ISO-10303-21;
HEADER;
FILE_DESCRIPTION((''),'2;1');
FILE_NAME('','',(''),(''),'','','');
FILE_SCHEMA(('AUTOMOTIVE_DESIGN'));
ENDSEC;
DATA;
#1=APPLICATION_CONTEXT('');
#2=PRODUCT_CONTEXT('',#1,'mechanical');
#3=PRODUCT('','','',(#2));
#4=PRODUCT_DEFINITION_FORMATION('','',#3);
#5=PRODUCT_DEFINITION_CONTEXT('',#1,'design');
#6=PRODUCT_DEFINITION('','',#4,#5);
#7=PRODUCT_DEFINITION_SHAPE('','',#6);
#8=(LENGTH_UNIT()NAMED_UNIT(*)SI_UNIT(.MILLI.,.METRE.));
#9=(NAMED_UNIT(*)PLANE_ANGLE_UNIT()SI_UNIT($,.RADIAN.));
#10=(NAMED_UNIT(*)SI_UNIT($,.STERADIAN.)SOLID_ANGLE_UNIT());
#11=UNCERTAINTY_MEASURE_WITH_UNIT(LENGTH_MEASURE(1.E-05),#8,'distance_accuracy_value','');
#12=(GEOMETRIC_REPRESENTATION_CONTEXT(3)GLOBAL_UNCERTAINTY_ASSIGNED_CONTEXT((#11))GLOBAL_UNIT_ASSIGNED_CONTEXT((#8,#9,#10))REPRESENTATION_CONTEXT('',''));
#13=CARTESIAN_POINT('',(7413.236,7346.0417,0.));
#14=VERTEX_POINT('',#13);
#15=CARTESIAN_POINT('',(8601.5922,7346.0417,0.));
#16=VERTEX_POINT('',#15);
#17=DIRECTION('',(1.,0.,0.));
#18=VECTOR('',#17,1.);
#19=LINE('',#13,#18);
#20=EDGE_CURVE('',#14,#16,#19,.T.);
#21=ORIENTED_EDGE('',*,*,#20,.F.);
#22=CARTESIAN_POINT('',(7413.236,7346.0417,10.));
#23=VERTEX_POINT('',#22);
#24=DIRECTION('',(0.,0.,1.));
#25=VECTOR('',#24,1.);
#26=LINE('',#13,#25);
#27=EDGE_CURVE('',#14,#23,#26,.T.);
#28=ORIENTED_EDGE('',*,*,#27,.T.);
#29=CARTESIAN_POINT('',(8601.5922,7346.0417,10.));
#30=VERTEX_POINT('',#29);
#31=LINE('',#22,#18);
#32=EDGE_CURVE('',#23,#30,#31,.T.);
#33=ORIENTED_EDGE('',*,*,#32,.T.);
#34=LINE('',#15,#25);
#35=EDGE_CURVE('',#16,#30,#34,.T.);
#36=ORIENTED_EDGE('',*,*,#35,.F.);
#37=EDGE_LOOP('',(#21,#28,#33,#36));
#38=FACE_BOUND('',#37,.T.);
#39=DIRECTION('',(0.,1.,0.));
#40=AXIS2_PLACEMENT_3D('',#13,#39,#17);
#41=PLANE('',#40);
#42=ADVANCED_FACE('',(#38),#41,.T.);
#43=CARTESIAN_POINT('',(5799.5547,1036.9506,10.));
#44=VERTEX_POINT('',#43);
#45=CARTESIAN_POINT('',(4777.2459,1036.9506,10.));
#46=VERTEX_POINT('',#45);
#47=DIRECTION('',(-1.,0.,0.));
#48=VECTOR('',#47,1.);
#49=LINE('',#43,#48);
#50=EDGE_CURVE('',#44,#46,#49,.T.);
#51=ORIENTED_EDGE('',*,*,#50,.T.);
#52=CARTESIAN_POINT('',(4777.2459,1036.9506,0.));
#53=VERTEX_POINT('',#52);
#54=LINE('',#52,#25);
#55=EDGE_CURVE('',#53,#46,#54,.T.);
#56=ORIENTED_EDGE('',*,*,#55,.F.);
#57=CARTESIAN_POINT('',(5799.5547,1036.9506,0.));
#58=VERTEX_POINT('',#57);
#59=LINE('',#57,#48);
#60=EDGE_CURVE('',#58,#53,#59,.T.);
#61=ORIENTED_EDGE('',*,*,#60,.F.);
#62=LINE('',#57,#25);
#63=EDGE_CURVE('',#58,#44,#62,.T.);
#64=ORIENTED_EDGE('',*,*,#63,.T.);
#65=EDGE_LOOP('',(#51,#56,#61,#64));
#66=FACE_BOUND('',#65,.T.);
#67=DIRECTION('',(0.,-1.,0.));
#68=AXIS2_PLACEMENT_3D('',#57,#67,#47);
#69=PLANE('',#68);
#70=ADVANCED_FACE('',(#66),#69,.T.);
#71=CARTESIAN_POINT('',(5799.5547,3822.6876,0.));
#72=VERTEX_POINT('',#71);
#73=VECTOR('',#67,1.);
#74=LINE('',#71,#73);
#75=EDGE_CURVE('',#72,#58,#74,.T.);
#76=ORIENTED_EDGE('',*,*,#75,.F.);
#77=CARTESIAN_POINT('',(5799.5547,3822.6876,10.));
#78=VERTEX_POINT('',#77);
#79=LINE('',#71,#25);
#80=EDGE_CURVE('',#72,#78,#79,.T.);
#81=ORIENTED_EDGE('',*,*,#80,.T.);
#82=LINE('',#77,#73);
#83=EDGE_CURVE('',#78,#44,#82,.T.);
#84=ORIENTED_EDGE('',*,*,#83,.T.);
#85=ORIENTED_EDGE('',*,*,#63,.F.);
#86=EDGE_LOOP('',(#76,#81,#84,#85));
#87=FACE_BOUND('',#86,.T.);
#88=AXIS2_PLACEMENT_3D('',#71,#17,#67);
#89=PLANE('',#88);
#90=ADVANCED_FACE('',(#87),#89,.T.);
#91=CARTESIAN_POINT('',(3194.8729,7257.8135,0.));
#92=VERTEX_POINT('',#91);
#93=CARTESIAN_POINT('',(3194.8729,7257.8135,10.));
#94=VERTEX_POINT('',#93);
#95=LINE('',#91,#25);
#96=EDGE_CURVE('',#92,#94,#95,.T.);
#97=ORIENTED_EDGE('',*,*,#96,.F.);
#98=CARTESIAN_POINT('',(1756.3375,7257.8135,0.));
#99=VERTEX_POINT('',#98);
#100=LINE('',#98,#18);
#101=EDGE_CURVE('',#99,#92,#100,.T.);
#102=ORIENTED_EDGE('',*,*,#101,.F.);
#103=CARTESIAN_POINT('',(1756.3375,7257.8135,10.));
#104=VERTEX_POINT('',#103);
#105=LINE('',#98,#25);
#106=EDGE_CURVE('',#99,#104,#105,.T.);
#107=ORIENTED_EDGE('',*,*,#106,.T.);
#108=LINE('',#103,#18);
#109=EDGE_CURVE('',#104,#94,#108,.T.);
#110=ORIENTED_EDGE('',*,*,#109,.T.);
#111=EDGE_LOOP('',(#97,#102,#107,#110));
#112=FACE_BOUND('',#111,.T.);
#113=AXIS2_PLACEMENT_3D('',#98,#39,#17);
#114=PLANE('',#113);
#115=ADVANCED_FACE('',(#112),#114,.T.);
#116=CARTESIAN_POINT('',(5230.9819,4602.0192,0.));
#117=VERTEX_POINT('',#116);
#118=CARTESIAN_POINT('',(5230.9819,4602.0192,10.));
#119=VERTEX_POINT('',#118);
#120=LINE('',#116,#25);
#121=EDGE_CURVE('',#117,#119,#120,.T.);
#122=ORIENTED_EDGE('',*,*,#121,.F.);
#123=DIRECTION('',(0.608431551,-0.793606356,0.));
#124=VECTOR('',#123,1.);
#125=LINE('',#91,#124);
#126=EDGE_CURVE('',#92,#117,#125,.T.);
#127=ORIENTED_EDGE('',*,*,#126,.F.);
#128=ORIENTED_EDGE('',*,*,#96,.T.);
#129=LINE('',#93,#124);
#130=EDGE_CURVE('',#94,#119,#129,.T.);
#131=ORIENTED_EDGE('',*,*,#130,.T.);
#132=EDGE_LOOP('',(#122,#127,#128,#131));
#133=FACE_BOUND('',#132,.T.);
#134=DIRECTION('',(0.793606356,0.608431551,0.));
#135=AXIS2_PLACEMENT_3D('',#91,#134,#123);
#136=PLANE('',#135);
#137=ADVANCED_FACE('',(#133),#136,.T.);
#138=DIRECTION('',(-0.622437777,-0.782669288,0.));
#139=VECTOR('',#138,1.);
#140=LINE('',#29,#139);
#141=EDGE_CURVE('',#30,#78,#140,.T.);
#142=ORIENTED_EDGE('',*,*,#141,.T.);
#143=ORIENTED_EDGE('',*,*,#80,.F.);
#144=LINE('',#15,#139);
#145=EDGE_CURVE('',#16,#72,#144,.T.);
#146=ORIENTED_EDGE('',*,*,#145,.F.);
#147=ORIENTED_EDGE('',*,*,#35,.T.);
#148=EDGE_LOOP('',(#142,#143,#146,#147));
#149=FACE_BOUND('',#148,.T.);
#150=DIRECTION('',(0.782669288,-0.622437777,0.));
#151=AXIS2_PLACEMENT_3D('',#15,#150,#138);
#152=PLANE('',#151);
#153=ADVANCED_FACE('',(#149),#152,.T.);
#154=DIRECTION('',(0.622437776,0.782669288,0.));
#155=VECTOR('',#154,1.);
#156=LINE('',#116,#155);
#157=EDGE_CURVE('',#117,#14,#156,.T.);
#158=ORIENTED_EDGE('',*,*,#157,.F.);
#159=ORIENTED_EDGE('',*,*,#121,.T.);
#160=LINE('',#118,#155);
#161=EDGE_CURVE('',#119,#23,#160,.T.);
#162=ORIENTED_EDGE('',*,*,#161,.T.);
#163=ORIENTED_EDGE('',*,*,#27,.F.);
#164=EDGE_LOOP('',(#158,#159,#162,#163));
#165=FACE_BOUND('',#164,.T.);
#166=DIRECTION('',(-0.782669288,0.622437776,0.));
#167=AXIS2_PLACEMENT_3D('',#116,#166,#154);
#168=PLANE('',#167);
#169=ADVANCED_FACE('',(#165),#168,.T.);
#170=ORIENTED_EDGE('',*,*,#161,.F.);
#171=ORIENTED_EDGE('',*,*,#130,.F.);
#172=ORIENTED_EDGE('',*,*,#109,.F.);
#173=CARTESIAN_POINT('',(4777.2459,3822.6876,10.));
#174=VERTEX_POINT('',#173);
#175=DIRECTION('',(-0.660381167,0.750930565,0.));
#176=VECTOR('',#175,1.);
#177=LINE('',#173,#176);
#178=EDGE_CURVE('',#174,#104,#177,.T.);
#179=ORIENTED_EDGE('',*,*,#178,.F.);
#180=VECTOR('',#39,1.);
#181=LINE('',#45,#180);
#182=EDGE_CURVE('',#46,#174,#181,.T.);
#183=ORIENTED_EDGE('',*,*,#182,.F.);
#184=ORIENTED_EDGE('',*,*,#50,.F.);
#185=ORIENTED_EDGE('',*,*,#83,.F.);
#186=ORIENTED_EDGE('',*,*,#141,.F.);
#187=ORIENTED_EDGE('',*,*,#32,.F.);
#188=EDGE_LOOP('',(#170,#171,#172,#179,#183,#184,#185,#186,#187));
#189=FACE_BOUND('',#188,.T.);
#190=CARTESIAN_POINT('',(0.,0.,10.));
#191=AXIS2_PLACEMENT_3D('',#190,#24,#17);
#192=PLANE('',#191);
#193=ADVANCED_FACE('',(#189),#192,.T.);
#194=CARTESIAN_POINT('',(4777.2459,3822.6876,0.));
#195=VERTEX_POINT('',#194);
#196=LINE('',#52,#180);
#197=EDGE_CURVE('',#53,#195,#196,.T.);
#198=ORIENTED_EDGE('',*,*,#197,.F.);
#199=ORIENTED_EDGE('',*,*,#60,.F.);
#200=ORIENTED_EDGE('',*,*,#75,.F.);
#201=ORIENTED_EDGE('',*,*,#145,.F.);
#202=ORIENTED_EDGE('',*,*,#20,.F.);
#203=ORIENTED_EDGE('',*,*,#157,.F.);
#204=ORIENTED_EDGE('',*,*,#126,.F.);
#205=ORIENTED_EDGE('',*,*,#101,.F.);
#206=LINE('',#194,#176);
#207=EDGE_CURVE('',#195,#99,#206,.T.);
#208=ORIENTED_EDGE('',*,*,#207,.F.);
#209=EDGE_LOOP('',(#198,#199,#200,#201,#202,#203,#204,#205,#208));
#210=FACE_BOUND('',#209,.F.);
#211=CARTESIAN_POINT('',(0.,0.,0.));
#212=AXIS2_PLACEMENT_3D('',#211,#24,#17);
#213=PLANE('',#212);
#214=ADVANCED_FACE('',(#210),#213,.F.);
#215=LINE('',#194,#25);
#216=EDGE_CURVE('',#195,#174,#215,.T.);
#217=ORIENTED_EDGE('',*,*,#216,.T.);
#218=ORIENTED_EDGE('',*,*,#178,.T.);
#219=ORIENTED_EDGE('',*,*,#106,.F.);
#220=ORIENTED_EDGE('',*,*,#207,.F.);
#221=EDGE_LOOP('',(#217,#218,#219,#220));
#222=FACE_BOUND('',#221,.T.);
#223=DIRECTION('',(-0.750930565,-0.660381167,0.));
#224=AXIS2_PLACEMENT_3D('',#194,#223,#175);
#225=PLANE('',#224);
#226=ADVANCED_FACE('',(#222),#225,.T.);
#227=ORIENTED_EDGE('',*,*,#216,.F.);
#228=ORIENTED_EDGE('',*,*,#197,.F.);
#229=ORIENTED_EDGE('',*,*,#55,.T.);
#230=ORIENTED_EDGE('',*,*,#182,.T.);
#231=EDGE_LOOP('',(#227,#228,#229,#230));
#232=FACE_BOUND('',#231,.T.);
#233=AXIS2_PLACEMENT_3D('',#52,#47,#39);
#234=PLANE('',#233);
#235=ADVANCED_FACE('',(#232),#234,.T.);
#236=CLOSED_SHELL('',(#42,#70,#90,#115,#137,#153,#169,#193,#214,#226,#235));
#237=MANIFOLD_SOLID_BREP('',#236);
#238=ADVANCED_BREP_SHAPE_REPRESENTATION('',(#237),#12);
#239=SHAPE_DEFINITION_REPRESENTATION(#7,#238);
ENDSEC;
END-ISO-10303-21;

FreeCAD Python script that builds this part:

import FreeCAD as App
import Part
import Sketcher
from FreeCAD import Vector
Q = App.Units.Quantity

doc = App.newDocument("Part")
params = doc.addObject("Spreadsheet::Sheet", "Params")
for row, (alias, value) in enumerate([
    ("pad1_length", "10 mm"),
], start=1):
    params.set(f"A{row}", alias)
    params.set(f"B{row}", "=" + value)
    params.setAlias(f"B{row}", alias)

body = doc.addObject("PartDesign::Body", "Body")

sketch1 = body.newObject("Sketcher::SketchObject", "Sketch")
sketch1.AttachmentSupport = (doc.getObject("XY_Plane"), [""])
sketch1.MapMode = "FlatFace"
sketch1.addGeometry(Part.LineSegment(Vector(3194.8729, 7257.8135, 0), Vector(1756.3375, 7257.8135, 0)), False)
sketch1.addGeometry(Part.LineSegment(Vector(1756.3375, 7257.8135, 0), Vector(4777.2459, 3822.6876, 0)), False)
sketch1.addGeometry(Part.LineSegment(Vector(4777.2459, 3822.6876, 0), Vector(4777.2459, 1036.9506, 0)), False)
sketch1.addGeometry(Part.LineSegment(Vector(4777.2459, 1036.9506, 0), Vector(5799.5547, 1036.9506, 0)), False)
sketch1.addGeometry(Part.LineSegment(Vector(5799.5547, 1036.9506, 0), Vector(5799.5547, 3822.6876, 0)), False)
sketch1.addGeometry(Part.LineSegment(Vector(5799.5547, 3822.6876, 0), Vector(8601.5922, 7346.0417, 0)), False)
sketch1.addGeometry(Part.LineSegment(Vector(8601.5922, 7346.0417, 0), Vector(7413.236, 7346.0417, 0)), False)
sketch1.addGeometry(Part.LineSegment(Vector(7413.236, 7346.0417, 0), Vector(5230.9819, 4602.0192, 0)), False)
sketch1.addGeometry(Part.LineSegment(Vector(5230.9819, 4602.0192, 0), Vector(3194.8729, 7257.8135, 0)), False)
sketch1.addConstraint(Sketcher.Constraint("Coincident", 0, 2, 1, 1))
sketch1.addConstraint(Sketcher.Constraint("Coincident", 1, 2, 2, 1))
sketch1.addConstraint(Sketcher.Constraint("Coincident", 2, 2, 3, 1))
sketch1.addConstraint(Sketcher.Constraint("Coincident", 3, 2, 4, 1))
sketch1.addConstraint(Sketcher.Constraint("Coincident", 4, 2, 5, 1))
sketch1.addConstraint(Sketcher.Constraint("Coincident", 5, 2, 6, 1))
sketch1.addConstraint(Sketcher.Constraint("Coincident", 6, 2, 7, 1))
sketch1.addConstraint(Sketcher.Constraint("Coincident", 7, 2, 8, 1))
sketch1.addConstraint(Sketcher.Constraint("Coincident", 8, 2, 0, 1))
sketch1.addConstraint(Sketcher.Constraint("Horizontal", 0))
sketch1.addConstraint(Sketcher.Constraint("Vertical", 2))
sketch1.addConstraint(Sketcher.Constraint("Horizontal", 3))
sketch1.addConstraint(Sketcher.Constraint("Vertical", 4))
sketch1.addConstraint(Sketcher.Constraint("Horizontal", 6))
sketch1.addConstraint(Sketcher.Constraint("DistanceY", 2, 2, 2, 1, Q("2785.737 mm")))
sketch1.addConstraint(Sketcher.Constraint("DistanceY", 4, 1, 4, 2, Q("2785.737 mm")))
sketch1.addConstraint(Sketcher.Constraint("DistanceX", 1, 2, 6, 2, Q("2635.99 mm")))
sketch1.addConstraint(Sketcher.Constraint("Distance", 1, Q("4574.492 mm")))
sketch1.addConstraint(Sketcher.Constraint("Distance", 5, Q("4501.715 mm")))
sketch1.addConstraint(Sketcher.Constraint("DistanceX", 0, 2, 0, 1, Q("1438.5354 mm")))
sketch1.addConstraint(Sketcher.Constraint("DistanceX", 3, 1, 3, 2, Q("1022.3088 mm")))
sketch1.addConstraint(Sketcher.Constraint("DistanceX", 6, 2, 6, 1, Q("1188.3562 mm")))
sketch1.addConstraint(Sketcher.Constraint("DistanceX", -1, 1, 1, 2, Q("4777.246 mm")))
sketch1.addConstraint(Sketcher.Constraint("DistanceX", -1, 1, 7, 2, Q("5230.982 mm")))
sketch1.addConstraint(Sketcher.Constraint("DistanceX", -1, 1, 8, 2, Q("3194.873 mm")))
sketch1.addConstraint(Sketcher.Constraint("Distance", 7, Q("3505.9795 mm")))
sketch1.addConstraint(Sketcher.Constraint("DistanceY", -1, 1, 0, 2, Q("7257.8135 mm")))
pad1 = body.newObject("PartDesign::Pad", "Pad")
pad1.Profile = sketch1
pad1.setExpression("Length", "Params.pad1_length")

doc.recompute()
